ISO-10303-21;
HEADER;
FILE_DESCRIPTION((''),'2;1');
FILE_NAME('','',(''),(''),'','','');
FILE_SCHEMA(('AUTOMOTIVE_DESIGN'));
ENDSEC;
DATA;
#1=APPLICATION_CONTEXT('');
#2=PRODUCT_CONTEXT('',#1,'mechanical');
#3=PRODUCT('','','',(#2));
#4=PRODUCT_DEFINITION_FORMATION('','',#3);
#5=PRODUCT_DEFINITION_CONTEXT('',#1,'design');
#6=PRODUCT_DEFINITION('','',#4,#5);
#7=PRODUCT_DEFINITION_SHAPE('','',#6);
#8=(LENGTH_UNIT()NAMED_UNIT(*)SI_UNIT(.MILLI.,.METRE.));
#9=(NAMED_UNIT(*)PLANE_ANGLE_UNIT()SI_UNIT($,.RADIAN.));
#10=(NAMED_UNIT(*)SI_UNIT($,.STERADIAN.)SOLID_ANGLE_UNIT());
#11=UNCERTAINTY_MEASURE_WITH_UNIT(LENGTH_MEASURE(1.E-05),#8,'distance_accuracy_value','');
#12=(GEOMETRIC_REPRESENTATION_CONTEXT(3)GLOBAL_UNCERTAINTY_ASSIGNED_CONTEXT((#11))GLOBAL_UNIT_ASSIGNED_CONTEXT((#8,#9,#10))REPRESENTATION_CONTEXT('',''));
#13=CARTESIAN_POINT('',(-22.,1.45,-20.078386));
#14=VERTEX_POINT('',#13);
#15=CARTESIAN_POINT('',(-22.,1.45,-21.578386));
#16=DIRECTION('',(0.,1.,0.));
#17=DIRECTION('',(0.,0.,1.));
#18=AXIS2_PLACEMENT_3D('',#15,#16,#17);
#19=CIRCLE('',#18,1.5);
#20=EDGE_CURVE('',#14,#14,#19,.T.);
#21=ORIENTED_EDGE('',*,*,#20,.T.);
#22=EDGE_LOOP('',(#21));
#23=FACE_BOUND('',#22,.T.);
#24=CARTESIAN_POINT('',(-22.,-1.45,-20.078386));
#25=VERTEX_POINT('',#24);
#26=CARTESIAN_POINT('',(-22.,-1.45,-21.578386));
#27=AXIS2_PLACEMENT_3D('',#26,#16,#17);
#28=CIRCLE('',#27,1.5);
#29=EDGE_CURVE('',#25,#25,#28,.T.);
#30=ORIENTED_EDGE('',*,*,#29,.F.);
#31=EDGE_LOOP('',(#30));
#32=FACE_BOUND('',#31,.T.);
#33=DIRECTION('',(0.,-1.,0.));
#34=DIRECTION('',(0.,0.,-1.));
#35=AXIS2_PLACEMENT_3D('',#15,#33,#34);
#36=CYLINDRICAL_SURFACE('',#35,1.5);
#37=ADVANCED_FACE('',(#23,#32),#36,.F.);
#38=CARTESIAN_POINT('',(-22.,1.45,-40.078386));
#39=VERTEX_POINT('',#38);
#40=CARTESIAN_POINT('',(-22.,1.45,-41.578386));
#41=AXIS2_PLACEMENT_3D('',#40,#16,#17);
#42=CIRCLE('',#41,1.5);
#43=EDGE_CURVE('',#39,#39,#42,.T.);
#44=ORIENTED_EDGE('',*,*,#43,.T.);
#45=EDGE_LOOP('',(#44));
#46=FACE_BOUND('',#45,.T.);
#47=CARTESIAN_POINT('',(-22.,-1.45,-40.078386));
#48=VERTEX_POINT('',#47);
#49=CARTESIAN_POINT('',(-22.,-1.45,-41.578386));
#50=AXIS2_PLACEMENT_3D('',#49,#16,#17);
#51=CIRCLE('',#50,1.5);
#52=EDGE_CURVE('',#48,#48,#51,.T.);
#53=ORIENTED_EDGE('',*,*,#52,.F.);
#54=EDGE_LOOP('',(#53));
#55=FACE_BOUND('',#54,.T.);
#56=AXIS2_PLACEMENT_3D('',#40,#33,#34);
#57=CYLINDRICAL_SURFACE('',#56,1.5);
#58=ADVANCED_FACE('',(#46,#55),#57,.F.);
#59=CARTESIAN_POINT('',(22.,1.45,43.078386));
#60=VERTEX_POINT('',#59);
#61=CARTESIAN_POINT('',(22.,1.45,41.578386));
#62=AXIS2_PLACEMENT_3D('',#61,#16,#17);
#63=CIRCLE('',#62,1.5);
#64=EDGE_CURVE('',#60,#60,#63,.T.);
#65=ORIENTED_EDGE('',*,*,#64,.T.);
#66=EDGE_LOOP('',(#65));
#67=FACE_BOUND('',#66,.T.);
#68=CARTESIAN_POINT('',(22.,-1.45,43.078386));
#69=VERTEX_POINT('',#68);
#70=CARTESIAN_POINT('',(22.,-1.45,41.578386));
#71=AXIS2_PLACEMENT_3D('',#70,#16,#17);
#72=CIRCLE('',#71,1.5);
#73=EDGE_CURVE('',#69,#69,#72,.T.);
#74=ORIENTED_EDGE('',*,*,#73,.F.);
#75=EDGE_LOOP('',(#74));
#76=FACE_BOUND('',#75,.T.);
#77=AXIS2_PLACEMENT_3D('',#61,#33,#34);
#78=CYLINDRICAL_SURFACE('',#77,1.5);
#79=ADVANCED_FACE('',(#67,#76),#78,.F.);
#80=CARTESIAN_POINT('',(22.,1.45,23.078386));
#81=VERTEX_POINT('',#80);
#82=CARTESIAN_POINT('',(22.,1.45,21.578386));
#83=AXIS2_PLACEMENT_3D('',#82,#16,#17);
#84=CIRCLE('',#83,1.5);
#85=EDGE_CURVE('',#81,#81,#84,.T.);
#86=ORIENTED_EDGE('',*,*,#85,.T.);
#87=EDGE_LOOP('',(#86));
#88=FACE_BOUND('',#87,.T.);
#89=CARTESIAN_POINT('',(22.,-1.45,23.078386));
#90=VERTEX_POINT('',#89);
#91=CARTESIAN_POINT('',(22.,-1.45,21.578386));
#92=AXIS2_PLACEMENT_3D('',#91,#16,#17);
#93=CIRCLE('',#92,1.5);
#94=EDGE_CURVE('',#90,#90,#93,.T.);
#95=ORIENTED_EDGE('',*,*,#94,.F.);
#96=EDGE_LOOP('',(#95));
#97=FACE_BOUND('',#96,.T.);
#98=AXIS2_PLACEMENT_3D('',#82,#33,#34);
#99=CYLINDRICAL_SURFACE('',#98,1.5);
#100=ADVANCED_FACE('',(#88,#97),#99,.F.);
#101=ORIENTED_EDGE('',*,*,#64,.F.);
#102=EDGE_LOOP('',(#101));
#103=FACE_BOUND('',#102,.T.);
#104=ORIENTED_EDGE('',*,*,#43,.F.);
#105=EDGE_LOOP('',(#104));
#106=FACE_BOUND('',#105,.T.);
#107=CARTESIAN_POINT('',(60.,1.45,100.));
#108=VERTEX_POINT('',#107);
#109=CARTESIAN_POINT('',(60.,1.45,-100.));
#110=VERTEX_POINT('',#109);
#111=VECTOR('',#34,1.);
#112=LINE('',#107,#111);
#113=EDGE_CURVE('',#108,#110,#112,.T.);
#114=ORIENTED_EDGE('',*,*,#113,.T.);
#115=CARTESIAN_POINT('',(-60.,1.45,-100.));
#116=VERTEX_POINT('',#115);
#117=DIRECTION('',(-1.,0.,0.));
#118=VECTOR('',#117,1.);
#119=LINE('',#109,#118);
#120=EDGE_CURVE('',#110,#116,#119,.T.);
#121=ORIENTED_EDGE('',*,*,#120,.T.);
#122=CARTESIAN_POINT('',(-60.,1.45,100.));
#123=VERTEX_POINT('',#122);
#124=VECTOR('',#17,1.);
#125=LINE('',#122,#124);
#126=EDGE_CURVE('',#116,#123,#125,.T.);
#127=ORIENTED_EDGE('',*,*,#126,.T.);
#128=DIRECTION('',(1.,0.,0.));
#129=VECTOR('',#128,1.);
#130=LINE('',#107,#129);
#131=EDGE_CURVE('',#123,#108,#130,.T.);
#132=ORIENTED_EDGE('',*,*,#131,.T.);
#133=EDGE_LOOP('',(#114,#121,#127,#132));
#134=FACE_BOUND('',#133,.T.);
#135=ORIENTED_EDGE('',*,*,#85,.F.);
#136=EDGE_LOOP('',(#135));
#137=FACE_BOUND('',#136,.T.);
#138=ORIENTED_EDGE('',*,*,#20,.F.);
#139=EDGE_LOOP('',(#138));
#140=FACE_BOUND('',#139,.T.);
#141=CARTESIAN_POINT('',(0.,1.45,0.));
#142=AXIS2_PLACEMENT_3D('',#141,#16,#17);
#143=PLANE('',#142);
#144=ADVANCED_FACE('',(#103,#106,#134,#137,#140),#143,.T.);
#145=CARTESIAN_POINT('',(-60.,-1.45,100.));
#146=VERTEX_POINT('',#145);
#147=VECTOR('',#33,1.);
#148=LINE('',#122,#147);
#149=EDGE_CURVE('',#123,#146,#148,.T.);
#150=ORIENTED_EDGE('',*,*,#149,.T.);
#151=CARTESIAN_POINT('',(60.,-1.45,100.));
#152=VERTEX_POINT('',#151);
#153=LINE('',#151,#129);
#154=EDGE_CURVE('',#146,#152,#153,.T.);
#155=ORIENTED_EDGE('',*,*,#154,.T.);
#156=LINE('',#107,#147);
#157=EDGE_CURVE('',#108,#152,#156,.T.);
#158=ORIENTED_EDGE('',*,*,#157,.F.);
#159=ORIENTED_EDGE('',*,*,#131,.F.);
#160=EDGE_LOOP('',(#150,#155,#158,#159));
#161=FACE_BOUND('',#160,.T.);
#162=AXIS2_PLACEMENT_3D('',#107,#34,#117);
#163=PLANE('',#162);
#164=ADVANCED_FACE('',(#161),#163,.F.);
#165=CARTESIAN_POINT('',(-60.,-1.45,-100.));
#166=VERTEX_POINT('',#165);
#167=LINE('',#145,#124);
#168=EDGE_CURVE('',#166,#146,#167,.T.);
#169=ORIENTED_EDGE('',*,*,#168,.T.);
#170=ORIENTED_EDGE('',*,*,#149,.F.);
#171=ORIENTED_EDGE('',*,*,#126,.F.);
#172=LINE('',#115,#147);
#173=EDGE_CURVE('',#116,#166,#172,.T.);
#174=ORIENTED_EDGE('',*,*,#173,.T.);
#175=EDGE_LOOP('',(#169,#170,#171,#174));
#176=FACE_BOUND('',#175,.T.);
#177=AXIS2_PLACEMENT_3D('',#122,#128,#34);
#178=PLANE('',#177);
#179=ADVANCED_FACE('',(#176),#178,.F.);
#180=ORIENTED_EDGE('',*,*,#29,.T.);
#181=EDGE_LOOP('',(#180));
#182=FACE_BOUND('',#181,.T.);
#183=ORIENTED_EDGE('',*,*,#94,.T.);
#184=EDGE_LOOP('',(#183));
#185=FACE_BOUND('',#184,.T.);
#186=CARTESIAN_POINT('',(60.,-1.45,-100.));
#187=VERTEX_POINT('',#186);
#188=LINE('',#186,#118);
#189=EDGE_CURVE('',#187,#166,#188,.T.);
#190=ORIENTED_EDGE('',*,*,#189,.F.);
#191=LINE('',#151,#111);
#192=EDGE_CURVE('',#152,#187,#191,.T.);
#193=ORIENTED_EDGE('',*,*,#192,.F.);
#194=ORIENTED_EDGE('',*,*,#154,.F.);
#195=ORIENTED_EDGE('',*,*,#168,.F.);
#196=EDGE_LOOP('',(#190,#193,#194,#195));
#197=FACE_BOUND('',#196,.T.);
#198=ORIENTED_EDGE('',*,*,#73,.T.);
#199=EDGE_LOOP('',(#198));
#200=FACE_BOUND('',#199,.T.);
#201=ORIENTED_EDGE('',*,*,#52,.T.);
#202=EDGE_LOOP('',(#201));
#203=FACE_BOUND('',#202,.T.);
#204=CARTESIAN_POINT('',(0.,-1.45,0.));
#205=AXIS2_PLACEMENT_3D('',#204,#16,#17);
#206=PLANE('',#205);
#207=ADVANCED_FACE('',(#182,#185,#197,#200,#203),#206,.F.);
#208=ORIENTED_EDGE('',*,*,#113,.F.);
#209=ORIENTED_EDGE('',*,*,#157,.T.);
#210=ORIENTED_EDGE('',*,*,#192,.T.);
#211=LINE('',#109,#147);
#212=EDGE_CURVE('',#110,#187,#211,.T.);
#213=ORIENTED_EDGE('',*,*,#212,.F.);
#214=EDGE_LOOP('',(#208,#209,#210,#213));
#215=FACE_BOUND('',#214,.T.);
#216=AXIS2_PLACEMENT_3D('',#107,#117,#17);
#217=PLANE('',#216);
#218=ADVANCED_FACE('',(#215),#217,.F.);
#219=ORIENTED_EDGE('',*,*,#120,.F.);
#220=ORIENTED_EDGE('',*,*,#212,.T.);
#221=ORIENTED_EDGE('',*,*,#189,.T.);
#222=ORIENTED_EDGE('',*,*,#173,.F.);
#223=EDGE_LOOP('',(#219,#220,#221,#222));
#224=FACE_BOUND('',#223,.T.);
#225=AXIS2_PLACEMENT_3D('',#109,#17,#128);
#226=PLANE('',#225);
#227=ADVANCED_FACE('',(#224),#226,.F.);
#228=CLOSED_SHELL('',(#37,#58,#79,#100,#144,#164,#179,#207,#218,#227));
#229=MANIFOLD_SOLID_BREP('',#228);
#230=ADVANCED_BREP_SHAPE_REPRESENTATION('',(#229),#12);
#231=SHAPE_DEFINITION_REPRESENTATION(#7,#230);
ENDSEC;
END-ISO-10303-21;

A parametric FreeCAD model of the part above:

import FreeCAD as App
import Part
import Sketcher
Q = App.Units.Quantity

doc = App.newDocument("Part")
body = doc.addObject("PartDesign::Body", "Body")

# Sketch on XZ plane
sketch1 = body.newObject("Sketcher::SketchObject", "Sketch")
sketch1.AttachmentSupport = (doc.getObject("XZ_Plane"), [""])
sketch1.MapMode = "FlatFace"
sketch1.addGeometry(Part.LineSegment(App.Vector(-60, -100, 0), App.Vector(-60, 100, 0)), False)
sketch1.addGeometry(Part.LineSegment(App.Vector(-60, 100, 0), App.Vector(60, 100, 0)), False)
sketch1.addGeometry(Part.LineSegment(App.Vector(60, 100, 0), App.Vector(60, -100, 0)), False)
sketch1.addGeometry(Part.LineSegment(App.Vector(60, -100, 0), App.Vector(-60, -100, 0)), False)
sketch1.addGeometry(Part.Circle(App.Vector(22, 41.6, 0), App.Vector(0, 0, 1), 1.5), False)
sketch1.addGeometry(Part.Circle(App.Vector(22, 21.6, 0), App.Vector(0, 0, 1), 1.5), False)
sketch1.addGeometry(Part.Circle(App.Vector(-22, -21.6, 0), App.Vector(0, 0, 1), 1.5), False)
sketch1.addGeometry(Part.Circle(App.Vector(-22, -41.6, 0), App.Vector(0, 0, 1), 1.5), False)
sketch1.addConstraint(Sketcher.Constraint("Coincident", 0, 2, 1, 1))
sketch1.addConstraint(Sketcher.Constraint("Coincident", 1, 2, 2, 1))
sketch1.addConstraint(Sketcher.Constraint("Coincident", 2, 2, 3, 1))
sketch1.addConstraint(Sketcher.Constraint("Coincident", 3, 2, 0, 1))
sketch1.addConstraint(Sketcher.Constraint("Vertical", 0))
sketch1.addConstraint(Sketcher.Constraint("Horizontal", 1))
sketch1.addConstraint(Sketcher.Constraint("Vertical", 2))
sketch1.addConstraint(Sketcher.Constraint("Horizontal", 3))
sketch1.addConstraint(Sketcher.Constraint("Equal", 4, 5))
sketch1.addConstraint(Sketcher.Constraint("Equal", 5, 6))
sketch1.addConstraint(Sketcher.Constraint("Equal", 6, 7))
sketch1.addConstraint(Sketcher.Constraint("Symmetric", 5, 3, 6, 3, -1, 1))
sketch1.addConstraint(Sketcher.Constraint("Symmetric", 4, 3, 7, 3, -1, 1))
sketch1.addConstraint(Sketcher.Constraint("Symmetric", 0, 2, 2, 2, -1, 1))
sketch1.addConstraint(Sketcher.Constraint("Vertical", 4, 3, 5, 3))
sketch1.addConstraint(Sketcher.Constraint("Diameter", 4, Q("3 mm")))
sketch1.addConstraint(Sketcher.Constraint("DistanceX", 1, 1, 1, 2, Q("120 mm")))
sketch1.addConstraint(Sketcher.Constraint("DistanceY", 0, 1, 0, 2, Q("200 mm")))
sketch1.addConstraint(Sketcher.Constraint("DistanceX", -1, 1, 4, 3, Q("22 mm")))
sketch1.addConstraint(Sketcher.Constraint("DistanceY", 5, 3, 4, 3, Q("20 mm")))
sketch1.addConstraint(Sketcher.Constraint("DistanceY", -1, 1, 4, 3, Q("41.578386 mm")))
pad1 = body.newObject("PartDesign::Pad", "Pad")
pad1.Profile = sketch1
pad1.Length = 2.9
pad1.Midplane = True

doc.recompute()
